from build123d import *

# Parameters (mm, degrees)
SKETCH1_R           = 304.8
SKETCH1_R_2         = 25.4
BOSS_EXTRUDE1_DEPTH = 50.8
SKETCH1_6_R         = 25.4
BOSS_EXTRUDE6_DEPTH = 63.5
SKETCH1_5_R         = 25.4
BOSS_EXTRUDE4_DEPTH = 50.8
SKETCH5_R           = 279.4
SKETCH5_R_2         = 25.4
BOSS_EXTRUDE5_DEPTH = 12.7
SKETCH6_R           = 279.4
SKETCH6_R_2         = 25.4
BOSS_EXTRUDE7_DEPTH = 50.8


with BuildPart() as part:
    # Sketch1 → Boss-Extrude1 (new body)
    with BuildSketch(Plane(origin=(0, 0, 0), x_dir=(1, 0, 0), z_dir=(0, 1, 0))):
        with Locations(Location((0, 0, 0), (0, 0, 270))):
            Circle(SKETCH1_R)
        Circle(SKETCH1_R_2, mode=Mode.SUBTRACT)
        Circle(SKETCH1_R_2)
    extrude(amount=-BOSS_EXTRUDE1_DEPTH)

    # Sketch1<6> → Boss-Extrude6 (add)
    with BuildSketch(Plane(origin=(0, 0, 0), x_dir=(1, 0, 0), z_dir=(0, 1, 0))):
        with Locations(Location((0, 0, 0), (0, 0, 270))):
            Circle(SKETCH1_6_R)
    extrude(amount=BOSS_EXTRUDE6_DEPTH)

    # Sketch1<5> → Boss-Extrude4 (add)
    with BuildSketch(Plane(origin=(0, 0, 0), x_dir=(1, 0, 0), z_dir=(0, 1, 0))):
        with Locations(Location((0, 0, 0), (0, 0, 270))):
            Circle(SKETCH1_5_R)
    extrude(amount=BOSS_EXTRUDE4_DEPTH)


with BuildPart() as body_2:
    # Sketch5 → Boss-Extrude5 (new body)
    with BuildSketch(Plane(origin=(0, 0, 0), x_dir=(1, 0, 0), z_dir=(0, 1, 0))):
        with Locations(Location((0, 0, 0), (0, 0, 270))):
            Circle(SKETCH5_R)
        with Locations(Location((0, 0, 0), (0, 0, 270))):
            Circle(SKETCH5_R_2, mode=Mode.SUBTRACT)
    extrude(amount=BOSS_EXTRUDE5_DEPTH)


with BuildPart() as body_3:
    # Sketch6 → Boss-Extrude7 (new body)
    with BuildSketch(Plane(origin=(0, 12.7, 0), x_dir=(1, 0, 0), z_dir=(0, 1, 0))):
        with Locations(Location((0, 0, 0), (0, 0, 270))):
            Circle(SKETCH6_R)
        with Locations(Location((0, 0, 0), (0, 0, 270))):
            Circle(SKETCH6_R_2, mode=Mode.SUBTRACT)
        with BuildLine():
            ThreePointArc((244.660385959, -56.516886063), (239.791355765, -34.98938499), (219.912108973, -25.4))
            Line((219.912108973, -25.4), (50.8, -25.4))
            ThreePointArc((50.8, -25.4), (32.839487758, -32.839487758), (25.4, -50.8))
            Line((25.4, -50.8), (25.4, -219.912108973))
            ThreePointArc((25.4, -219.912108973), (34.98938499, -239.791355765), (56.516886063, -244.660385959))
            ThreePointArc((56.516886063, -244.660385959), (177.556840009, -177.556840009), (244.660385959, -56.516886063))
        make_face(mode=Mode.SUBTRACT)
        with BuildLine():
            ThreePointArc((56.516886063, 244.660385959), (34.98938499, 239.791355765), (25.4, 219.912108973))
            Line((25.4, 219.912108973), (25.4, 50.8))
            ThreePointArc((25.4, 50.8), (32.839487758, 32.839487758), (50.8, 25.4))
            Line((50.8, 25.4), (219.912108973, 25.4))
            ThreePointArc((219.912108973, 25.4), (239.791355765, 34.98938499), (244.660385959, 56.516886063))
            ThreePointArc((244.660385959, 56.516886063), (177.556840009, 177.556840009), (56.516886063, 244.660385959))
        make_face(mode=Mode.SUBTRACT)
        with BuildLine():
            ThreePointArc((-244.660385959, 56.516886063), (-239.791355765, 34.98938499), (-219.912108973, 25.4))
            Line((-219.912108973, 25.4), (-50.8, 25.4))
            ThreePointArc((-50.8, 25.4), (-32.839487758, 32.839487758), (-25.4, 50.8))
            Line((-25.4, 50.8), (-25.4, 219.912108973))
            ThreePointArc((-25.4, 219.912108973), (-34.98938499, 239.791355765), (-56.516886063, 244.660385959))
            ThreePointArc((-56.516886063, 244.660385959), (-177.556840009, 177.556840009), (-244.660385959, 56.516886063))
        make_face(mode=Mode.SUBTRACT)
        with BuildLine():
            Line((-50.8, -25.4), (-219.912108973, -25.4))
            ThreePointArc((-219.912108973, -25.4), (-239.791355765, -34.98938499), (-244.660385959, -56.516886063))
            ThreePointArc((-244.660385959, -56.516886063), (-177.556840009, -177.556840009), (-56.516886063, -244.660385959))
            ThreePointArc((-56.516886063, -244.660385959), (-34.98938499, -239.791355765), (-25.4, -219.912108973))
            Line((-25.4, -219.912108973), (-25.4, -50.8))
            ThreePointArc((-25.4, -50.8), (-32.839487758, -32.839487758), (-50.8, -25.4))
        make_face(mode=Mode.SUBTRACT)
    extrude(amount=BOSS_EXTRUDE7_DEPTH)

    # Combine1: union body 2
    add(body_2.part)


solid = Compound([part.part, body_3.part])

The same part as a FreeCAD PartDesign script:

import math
import FreeCAD as App
import Part
import Sketcher
from FreeCAD import Vector
Q = App.Units.Quantity

doc = App.newDocument("Part")
body = doc.addObject("PartDesign::Body", "Body")

sketch1 = body.newObject("Sketcher::SketchObject", "Sketch")
sketch1.AttachmentSupport = (doc.getObject("XZ_Plane"), [""])
sketch1.MapMode = "FlatFace"
sketch1.addGeometry(Part.Circle(Vector(0, 0, 0), Vector(0, 0, 1), 305), False)
sketch1.addConstraint(Sketcher.Constraint("Coincident", 0, 3, -1, 1))
sketch1.addConstraint(Sketcher.Constraint("Diameter", 0, Q("24 in")))
pad1 = body.newObject("PartDesign::Pad", "Pad")
pad1.Profile = sketch1
pad1.Length = Q("2 in")

sketch2 = body.newObject("Sketcher::SketchObject", "Sketch001")
sketch2.AttachmentSupport = (doc.getObject("XZ_Plane"), [""])
sketch2.MapMode = "FlatFace"
sketch2.addGeometry(Part.Circle(Vector(0, 0, 0), Vector(0, 0, 1), 25), False)
sketch2.addConstraint(Sketcher.Constraint("Coincident", 0, 3, -1, 1))
sketch2.addConstraint(Sketcher.Constraint("Diameter", 0, Q("2 in")))
pad2 = body.newObject("PartDesign::Pad", "Pad001")
pad2.Profile = sketch2
pad2.Length = Q("2.5 in")
pad2.Reversed = True

sketch3 = body.newObject("Sketcher::SketchObject", "Sketch002")
sketch3.AttachmentSupport = (doc.getObject("XZ_Plane"), [""])
sketch3.MapMode = "FlatFace"
sketch3.addGeometry(Part.Circle(Vector(0, 0, 0), Vector(0, 0, 1), 25), False)
sketch3.addConstraint(Sketcher.Constraint("Coincident", 0, 3, -1, 1))
sketch3.addConstraint(Sketcher.Constraint("Diameter", 0, Q("2 in")))
pad3 = body.newObject("PartDesign::Pad", "Pad002")
pad3.Profile = sketch3
pad3.Length = Q("2 in")
pad3.Reversed = True
body2 = doc.addObject("PartDesign::Body", "Body001")

sketch4 = body2.newObject("Sketcher::SketchObject", "Sketch003")
sketch4.AttachmentSupport = (doc.getObject("XZ_Plane001"), [""])
sketch4.MapMode = "FlatFace"
sketch4.addGeometry(Part.Circle(Vector(0, 0, 0), Vector(0, 0, 1), 279), False)
sketch4.addGeometry(Part.Circle(Vector(0, 0, 0), Vector(0, 0, 1), 25), False)
sketch4.addConstraint(Sketcher.Constraint("Coincident", 0, 3, -1, 1))
sketch4.addConstraint(Sketcher.Constraint("Coincident", 1, 3, -1, 1))
sketch4.addConstraint(Sketcher.Constraint("Diameter", 0, Q("22 in")))
sketch4.addConstraint(Sketcher.Constraint("Diameter", 1, Q("2 in")))
pad4 = body2.newObject("PartDesign::Pad", "Pad003")
pad4.Profile = sketch4
pad4.Length = Q("0.5 in")
pad4.Reversed = True
body3 = doc.addObject("PartDesign::Body", "Body002")

sketch5 = body3.newObject("Sketcher::SketchObject", "Sketch004")
sketch5.AttachmentSupport = (doc.getObject("XZ_Plane002"), [""])
sketch5.MapMode = "FlatFace"
sketch5.AttachmentOffset = App.Placement(Vector(0, 0, -0.5 * 25.4), App.Rotation())
sketch5.addGeometry(Part.Circle(Vector(0, 0, 0), Vector(0, 0, 1), 279), False)
sketch5.addGeometry(Part.ArcOfCircle(Part.Circle(Vector(-220, -51, 0), Vector(0, 0, 1), 25), math.radians(90), math.radians(193)), False)
sketch5.addGeometry(Part.ArcOfCircle(Part.Circle(Vector(0, 0, 0), Vector(0, 0, 1), 251), math.radians(-167), math.radians(-103)), False)
sketch5.addGeometry(Part.ArcOfCircle(Part.Circle(Vector(-51, -220, 0), Vector(0, 0, 1), 25), math.radians(-103), math.radians(0)), False)
sketch5.addGeometry(Part.LineSegment(Vector(-25, -220, 0), Vector(-25, -51, 0)), False)
sketch5.addGeometry(Part.ArcOfCircle(Part.Circle(Vector(-51, -51, 0), Vector(0, 0, 1), 25), math.radians(0), math.radians(90)), False)
sketch5.addGeometry(Part.LineSegment(Vector(-51, -25, 0), Vector(-220, -25, 0)), False)
sketch5.addGeometry(Part.LineSegment(Vector(-220, 25, 0), Vector(-51, 25, 0)), False)
sketch5.addGeometry(Part.ArcOfCircle(Part.Circle(Vector(-51, 51, 0), Vector(0, 0, 1), 25), math.radians(-90), math.radians(0)), False)
sketch5.addGeometry(Part.LineSegment(Vector(-25, 51, 0), Vector(-25, 220, 0)), False)
sketch5.addGeometry(Part.ArcOfCircle(Part.Circle(Vector(-51, 220, 0), Vector(0, 0, 1), 25), math.radians(0), math.radians(103)), False)
sketch5.addGeometry(Part.ArcOfCircle(Part.Circle(Vector(0, 0, 0), Vector(0, 0, 1), 251), math.radians(103), math.radians(167)), False)
sketch5.addGeometry(Part.ArcOfCircle(Part.Circle(Vector(-220, 51, 0), Vector(0, 0, 1), 25), math.radians(167), math.radians(270)), False)
sketch5.addGeometry(Part.ArcOfCircle(Part.Circle(Vector(51, -220, 0), Vector(0, 0, 1), 25), math.radians(180), math.radians(283)), False)
sketch5.addGeometry(Part.ArcOfCircle(Part.Circle(Vector(0, 0, 0), Vector(0, 0, 1), 251), math.radians(-77), math.radians(-13)), False)
sketch5.addGeometry(Part.ArcOfCircle(Part.Circle(Vector(220, -51, 0), Vector(0, 0, 1), 25), math.radians(-13), math.radians(90)), False)
sketch5.addGeometry(Part.LineSegment(Vector(220, -25, 0), Vector(51, -25, 0)), False)
sketch5.addGeometry(Part.ArcOfCircle(Part.Circle(Vector(51, -51, 0), Vector(0, 0, 1), 25), math.radians(90), math.radians(180)), False)
sketch5.addGeometry(Part.LineSegment(Vector(25, -51, 0), Vector(25, -220, 0)), False)
sketch5.addGeometry(Part.Circle(Vector(0, 0, 0), Vector(0, 0, 1), 25), False)
sketch5.addGeometry(Part.ArcOfCircle(Part.Circle(Vector(220, 51, 0), Vector(0, 0, 1), 25), math.radians(-90), math.radians(13)), False)
sketch5.addGeometry(Part.ArcOfCircle(Part.Circle(Vector(0, 0, 0), Vector(0, 0, 1), 251), math.radians(13), math.radians(77)), False)
sketch5.addGeometry(Part.ArcOfCircle(Part.Circle(Vector(51, 220, 0), Vector(0, 0, 1), 25), math.radians(77), math.radians(180)), False)
sketch5.addGeometry(Part.LineSegment(Vector(25, 220, 0), Vector(25, 51, 0)), False)
sketch5.addGeometry(Part.ArcOfCircle(Part.Circle(Vector(51, 51, 0), Vector(0, 0, 1), 25), math.radians(180), math.radians(270)), False)
sketch5.addGeometry(Part.LineSegment(Vector(51, 25, 0), Vector(220, 25, 0)), False)
sketch5.addConstraint(Sketcher.Constraint("Tangent", 1, 2, 2, 1))
sketch5.addConstraint(Sketcher.Constraint("Tangent", 2, 2, 3, 1))
sketch5.addConstraint(Sketcher.Constraint("Tangent", 3, 2, 4, 1))
sketch5.addConstraint(Sketcher.Constraint("Tangent", 4, 2, 5, 1))
sketch5.addConstraint(Sketcher.Constraint("Tangent", 5, 2, 6, 1))
sketch5.addConstraint(Sketcher.Constraint("Tangent", 6, 2, 1, 1))
sketch5.addConstraint(Sketcher.Constraint("Tangent", 7, 2, 8, 1))
sketch5.addConstraint(Sketcher.Constraint("Tangent", 8, 2, 9, 1))
sketch5.addConstraint(Sketcher.Constraint("Tangent", 9, 2, 10, 1))
sketch5.addConstraint(Sketcher.Constraint("Tangent", 10, 2, 11, 1))
sketch5.addConstraint(Sketcher.Constraint("Tangent", 11, 2, 12, 1))
sketch5.addConstraint(Sketcher.Constraint("Tangent", 12, 2, 7, 1))
sketch5.addConstraint(Sketcher.Constraint("Tangent", 13, 2, 14, 1))
sketch5.addConstraint(Sketcher.Constraint("Tangent", 14, 2, 15, 1))
sketch5.addConstraint(Sketcher.Constraint("Tangent", 15, 2, 16, 1))
sketch5.addConstraint(Sketcher.Constraint("Tangent", 16, 2, 17, 1))
sketch5.addConstraint(Sketcher.Constraint("Tangent", 17, 2, 18, 1))
sketch5.addConstraint(Sketcher.Constraint("Tangent", 18, 2, 13, 1))
sketch5.addConstraint(Sketcher.Constraint("Tangent", 20, 2, 21, 1))
sketch5.addConstraint(Sketcher.Constraint("Tangent", 21, 2, 22, 1))
sketch5.addConstraint(Sketcher.Constraint("Tangent", 22, 2, 23, 1))
sketch5.addConstraint(Sketcher.Constraint("Tangent", 23, 2, 24, 1))
sketch5.addConstraint(Sketcher.Constraint("Tangent", 24, 2, 25, 1))
sketch5.addConstraint(Sketcher.Constraint("Tangent", 25, 2, 20, 1))
sketch5.addConstraint(Sketcher.Constraint("Vertical", 4))
sketch5.addConstraint(Sketcher.Constraint("Horizontal", 6))
sketch5.addConstraint(Sketcher.Constraint("Horizontal", 7))
sketch5.addConstraint(Sketcher.Constraint("Vertical", 9))
sketch5.addConstraint(Sketcher.Constraint("Horizontal", 16))
sketch5.addConstraint(Sketcher.Constraint("Vertical", 18))
sketch5.addConstraint(Sketcher.Constraint("Vertical", 23))
sketch5.addConstraint(Sketcher.Constraint("Horizontal", 25))
sketch5.addConstraint(Sketcher.Constraint("Coincident", 0, 3, -1, 1))
sketch5.addConstraint(Sketcher.Constraint("Coincident", 2, 3, -1, 1))
sketch5.addConstraint(Sketcher.Constraint("Coincident", 11, 3, -1, 1))
sketch5.addConstraint(Sketcher.Constraint("Coincident", 14, 3, -1, 1))
sketch5.addConstraint(Sketcher.Constraint("Coincident", 19, 3, -1, 1))
sketch5.addConstraint(Sketcher.Constraint("Coincident", 21, 3, -1, 1))
sketch5.addConstraint(Sketcher.Constraint("Equal", 1, 3))
sketch5.addConstraint(Sketcher.Constraint("Equal", 3, 5))
sketch5.addConstraint(Sketcher.Constraint("Equal", 5, 8))
sketch5.addConstraint(Sketcher.Constraint("Equal", 8, 10))
sketch5.addConstraint(Sketcher.Constraint("Equal", 2, 11))
sketch5.addConstraint(Sketcher.Constraint("Equal", 10, 12))
sketch5.addConstraint(Sketcher.Constraint("Equal", 12, 13))
sketch5.addConstraint(Sketcher.Constraint("Equal", 11, 14))
sketch5.addConstraint(Sketcher.Constraint("Equal", 13, 15))
sketch5.addConstraint(Sketcher.Constraint("Equal", 15, 17))
sketch5.addConstraint(Sketcher.Constraint("Equal", 17, 19))
sketch5.addConstraint(Sketcher.Constraint("Equal", 19, 20))
sketch5.addConstraint(Sketcher.Constraint("Equal", 14, 21))
sketch5.addConstraint(Sketcher.Constraint("Equal", 20, 22))
sketch5.addConstraint(Sketcher.Constraint("Equal", 22, 24))
sketch5.addConstraint(Sketcher.Constraint("Symmetric", 8, 3, 17, 3, -1, 1))
sketch5.addConstraint(Sketcher.Constraint("Symmetric", 5, 3, 24, 3, -1, 1))
sketch5.addConstraint(Sketcher.Constraint("Symmetric", 5, 3, 17, 3, -2))
sketch5.addConstraint(Sketcher.Constraint("Equal", 25, 4))
sketch5.addConstraint(Sketcher.Constraint("Diameter", 0, Q("22 in")))
sketch5.addConstraint(Sketcher.Constraint("Diameter", 19, Q("2 in")))
sketch5.addConstraint(Sketcher.Constraint("DistanceY", 1, 3, -1, 1, Q("2 in")))
sketch5.addConstraint(Sketcher.Constraint("Radius", 2, 251.103291))
pad5 = body3.newObject("PartDesign::Pad", "Pad004")
pad5.Profile = sketch5
pad5.Length = Q("2 in")
pad5.Reversed = True
doc.recompute()

boolean = body3.newObject("PartDesign::Boolean", "Boolean")
boolean.Type = "Fuse"
boolean.addObjects([body2])

doc.recompute()
